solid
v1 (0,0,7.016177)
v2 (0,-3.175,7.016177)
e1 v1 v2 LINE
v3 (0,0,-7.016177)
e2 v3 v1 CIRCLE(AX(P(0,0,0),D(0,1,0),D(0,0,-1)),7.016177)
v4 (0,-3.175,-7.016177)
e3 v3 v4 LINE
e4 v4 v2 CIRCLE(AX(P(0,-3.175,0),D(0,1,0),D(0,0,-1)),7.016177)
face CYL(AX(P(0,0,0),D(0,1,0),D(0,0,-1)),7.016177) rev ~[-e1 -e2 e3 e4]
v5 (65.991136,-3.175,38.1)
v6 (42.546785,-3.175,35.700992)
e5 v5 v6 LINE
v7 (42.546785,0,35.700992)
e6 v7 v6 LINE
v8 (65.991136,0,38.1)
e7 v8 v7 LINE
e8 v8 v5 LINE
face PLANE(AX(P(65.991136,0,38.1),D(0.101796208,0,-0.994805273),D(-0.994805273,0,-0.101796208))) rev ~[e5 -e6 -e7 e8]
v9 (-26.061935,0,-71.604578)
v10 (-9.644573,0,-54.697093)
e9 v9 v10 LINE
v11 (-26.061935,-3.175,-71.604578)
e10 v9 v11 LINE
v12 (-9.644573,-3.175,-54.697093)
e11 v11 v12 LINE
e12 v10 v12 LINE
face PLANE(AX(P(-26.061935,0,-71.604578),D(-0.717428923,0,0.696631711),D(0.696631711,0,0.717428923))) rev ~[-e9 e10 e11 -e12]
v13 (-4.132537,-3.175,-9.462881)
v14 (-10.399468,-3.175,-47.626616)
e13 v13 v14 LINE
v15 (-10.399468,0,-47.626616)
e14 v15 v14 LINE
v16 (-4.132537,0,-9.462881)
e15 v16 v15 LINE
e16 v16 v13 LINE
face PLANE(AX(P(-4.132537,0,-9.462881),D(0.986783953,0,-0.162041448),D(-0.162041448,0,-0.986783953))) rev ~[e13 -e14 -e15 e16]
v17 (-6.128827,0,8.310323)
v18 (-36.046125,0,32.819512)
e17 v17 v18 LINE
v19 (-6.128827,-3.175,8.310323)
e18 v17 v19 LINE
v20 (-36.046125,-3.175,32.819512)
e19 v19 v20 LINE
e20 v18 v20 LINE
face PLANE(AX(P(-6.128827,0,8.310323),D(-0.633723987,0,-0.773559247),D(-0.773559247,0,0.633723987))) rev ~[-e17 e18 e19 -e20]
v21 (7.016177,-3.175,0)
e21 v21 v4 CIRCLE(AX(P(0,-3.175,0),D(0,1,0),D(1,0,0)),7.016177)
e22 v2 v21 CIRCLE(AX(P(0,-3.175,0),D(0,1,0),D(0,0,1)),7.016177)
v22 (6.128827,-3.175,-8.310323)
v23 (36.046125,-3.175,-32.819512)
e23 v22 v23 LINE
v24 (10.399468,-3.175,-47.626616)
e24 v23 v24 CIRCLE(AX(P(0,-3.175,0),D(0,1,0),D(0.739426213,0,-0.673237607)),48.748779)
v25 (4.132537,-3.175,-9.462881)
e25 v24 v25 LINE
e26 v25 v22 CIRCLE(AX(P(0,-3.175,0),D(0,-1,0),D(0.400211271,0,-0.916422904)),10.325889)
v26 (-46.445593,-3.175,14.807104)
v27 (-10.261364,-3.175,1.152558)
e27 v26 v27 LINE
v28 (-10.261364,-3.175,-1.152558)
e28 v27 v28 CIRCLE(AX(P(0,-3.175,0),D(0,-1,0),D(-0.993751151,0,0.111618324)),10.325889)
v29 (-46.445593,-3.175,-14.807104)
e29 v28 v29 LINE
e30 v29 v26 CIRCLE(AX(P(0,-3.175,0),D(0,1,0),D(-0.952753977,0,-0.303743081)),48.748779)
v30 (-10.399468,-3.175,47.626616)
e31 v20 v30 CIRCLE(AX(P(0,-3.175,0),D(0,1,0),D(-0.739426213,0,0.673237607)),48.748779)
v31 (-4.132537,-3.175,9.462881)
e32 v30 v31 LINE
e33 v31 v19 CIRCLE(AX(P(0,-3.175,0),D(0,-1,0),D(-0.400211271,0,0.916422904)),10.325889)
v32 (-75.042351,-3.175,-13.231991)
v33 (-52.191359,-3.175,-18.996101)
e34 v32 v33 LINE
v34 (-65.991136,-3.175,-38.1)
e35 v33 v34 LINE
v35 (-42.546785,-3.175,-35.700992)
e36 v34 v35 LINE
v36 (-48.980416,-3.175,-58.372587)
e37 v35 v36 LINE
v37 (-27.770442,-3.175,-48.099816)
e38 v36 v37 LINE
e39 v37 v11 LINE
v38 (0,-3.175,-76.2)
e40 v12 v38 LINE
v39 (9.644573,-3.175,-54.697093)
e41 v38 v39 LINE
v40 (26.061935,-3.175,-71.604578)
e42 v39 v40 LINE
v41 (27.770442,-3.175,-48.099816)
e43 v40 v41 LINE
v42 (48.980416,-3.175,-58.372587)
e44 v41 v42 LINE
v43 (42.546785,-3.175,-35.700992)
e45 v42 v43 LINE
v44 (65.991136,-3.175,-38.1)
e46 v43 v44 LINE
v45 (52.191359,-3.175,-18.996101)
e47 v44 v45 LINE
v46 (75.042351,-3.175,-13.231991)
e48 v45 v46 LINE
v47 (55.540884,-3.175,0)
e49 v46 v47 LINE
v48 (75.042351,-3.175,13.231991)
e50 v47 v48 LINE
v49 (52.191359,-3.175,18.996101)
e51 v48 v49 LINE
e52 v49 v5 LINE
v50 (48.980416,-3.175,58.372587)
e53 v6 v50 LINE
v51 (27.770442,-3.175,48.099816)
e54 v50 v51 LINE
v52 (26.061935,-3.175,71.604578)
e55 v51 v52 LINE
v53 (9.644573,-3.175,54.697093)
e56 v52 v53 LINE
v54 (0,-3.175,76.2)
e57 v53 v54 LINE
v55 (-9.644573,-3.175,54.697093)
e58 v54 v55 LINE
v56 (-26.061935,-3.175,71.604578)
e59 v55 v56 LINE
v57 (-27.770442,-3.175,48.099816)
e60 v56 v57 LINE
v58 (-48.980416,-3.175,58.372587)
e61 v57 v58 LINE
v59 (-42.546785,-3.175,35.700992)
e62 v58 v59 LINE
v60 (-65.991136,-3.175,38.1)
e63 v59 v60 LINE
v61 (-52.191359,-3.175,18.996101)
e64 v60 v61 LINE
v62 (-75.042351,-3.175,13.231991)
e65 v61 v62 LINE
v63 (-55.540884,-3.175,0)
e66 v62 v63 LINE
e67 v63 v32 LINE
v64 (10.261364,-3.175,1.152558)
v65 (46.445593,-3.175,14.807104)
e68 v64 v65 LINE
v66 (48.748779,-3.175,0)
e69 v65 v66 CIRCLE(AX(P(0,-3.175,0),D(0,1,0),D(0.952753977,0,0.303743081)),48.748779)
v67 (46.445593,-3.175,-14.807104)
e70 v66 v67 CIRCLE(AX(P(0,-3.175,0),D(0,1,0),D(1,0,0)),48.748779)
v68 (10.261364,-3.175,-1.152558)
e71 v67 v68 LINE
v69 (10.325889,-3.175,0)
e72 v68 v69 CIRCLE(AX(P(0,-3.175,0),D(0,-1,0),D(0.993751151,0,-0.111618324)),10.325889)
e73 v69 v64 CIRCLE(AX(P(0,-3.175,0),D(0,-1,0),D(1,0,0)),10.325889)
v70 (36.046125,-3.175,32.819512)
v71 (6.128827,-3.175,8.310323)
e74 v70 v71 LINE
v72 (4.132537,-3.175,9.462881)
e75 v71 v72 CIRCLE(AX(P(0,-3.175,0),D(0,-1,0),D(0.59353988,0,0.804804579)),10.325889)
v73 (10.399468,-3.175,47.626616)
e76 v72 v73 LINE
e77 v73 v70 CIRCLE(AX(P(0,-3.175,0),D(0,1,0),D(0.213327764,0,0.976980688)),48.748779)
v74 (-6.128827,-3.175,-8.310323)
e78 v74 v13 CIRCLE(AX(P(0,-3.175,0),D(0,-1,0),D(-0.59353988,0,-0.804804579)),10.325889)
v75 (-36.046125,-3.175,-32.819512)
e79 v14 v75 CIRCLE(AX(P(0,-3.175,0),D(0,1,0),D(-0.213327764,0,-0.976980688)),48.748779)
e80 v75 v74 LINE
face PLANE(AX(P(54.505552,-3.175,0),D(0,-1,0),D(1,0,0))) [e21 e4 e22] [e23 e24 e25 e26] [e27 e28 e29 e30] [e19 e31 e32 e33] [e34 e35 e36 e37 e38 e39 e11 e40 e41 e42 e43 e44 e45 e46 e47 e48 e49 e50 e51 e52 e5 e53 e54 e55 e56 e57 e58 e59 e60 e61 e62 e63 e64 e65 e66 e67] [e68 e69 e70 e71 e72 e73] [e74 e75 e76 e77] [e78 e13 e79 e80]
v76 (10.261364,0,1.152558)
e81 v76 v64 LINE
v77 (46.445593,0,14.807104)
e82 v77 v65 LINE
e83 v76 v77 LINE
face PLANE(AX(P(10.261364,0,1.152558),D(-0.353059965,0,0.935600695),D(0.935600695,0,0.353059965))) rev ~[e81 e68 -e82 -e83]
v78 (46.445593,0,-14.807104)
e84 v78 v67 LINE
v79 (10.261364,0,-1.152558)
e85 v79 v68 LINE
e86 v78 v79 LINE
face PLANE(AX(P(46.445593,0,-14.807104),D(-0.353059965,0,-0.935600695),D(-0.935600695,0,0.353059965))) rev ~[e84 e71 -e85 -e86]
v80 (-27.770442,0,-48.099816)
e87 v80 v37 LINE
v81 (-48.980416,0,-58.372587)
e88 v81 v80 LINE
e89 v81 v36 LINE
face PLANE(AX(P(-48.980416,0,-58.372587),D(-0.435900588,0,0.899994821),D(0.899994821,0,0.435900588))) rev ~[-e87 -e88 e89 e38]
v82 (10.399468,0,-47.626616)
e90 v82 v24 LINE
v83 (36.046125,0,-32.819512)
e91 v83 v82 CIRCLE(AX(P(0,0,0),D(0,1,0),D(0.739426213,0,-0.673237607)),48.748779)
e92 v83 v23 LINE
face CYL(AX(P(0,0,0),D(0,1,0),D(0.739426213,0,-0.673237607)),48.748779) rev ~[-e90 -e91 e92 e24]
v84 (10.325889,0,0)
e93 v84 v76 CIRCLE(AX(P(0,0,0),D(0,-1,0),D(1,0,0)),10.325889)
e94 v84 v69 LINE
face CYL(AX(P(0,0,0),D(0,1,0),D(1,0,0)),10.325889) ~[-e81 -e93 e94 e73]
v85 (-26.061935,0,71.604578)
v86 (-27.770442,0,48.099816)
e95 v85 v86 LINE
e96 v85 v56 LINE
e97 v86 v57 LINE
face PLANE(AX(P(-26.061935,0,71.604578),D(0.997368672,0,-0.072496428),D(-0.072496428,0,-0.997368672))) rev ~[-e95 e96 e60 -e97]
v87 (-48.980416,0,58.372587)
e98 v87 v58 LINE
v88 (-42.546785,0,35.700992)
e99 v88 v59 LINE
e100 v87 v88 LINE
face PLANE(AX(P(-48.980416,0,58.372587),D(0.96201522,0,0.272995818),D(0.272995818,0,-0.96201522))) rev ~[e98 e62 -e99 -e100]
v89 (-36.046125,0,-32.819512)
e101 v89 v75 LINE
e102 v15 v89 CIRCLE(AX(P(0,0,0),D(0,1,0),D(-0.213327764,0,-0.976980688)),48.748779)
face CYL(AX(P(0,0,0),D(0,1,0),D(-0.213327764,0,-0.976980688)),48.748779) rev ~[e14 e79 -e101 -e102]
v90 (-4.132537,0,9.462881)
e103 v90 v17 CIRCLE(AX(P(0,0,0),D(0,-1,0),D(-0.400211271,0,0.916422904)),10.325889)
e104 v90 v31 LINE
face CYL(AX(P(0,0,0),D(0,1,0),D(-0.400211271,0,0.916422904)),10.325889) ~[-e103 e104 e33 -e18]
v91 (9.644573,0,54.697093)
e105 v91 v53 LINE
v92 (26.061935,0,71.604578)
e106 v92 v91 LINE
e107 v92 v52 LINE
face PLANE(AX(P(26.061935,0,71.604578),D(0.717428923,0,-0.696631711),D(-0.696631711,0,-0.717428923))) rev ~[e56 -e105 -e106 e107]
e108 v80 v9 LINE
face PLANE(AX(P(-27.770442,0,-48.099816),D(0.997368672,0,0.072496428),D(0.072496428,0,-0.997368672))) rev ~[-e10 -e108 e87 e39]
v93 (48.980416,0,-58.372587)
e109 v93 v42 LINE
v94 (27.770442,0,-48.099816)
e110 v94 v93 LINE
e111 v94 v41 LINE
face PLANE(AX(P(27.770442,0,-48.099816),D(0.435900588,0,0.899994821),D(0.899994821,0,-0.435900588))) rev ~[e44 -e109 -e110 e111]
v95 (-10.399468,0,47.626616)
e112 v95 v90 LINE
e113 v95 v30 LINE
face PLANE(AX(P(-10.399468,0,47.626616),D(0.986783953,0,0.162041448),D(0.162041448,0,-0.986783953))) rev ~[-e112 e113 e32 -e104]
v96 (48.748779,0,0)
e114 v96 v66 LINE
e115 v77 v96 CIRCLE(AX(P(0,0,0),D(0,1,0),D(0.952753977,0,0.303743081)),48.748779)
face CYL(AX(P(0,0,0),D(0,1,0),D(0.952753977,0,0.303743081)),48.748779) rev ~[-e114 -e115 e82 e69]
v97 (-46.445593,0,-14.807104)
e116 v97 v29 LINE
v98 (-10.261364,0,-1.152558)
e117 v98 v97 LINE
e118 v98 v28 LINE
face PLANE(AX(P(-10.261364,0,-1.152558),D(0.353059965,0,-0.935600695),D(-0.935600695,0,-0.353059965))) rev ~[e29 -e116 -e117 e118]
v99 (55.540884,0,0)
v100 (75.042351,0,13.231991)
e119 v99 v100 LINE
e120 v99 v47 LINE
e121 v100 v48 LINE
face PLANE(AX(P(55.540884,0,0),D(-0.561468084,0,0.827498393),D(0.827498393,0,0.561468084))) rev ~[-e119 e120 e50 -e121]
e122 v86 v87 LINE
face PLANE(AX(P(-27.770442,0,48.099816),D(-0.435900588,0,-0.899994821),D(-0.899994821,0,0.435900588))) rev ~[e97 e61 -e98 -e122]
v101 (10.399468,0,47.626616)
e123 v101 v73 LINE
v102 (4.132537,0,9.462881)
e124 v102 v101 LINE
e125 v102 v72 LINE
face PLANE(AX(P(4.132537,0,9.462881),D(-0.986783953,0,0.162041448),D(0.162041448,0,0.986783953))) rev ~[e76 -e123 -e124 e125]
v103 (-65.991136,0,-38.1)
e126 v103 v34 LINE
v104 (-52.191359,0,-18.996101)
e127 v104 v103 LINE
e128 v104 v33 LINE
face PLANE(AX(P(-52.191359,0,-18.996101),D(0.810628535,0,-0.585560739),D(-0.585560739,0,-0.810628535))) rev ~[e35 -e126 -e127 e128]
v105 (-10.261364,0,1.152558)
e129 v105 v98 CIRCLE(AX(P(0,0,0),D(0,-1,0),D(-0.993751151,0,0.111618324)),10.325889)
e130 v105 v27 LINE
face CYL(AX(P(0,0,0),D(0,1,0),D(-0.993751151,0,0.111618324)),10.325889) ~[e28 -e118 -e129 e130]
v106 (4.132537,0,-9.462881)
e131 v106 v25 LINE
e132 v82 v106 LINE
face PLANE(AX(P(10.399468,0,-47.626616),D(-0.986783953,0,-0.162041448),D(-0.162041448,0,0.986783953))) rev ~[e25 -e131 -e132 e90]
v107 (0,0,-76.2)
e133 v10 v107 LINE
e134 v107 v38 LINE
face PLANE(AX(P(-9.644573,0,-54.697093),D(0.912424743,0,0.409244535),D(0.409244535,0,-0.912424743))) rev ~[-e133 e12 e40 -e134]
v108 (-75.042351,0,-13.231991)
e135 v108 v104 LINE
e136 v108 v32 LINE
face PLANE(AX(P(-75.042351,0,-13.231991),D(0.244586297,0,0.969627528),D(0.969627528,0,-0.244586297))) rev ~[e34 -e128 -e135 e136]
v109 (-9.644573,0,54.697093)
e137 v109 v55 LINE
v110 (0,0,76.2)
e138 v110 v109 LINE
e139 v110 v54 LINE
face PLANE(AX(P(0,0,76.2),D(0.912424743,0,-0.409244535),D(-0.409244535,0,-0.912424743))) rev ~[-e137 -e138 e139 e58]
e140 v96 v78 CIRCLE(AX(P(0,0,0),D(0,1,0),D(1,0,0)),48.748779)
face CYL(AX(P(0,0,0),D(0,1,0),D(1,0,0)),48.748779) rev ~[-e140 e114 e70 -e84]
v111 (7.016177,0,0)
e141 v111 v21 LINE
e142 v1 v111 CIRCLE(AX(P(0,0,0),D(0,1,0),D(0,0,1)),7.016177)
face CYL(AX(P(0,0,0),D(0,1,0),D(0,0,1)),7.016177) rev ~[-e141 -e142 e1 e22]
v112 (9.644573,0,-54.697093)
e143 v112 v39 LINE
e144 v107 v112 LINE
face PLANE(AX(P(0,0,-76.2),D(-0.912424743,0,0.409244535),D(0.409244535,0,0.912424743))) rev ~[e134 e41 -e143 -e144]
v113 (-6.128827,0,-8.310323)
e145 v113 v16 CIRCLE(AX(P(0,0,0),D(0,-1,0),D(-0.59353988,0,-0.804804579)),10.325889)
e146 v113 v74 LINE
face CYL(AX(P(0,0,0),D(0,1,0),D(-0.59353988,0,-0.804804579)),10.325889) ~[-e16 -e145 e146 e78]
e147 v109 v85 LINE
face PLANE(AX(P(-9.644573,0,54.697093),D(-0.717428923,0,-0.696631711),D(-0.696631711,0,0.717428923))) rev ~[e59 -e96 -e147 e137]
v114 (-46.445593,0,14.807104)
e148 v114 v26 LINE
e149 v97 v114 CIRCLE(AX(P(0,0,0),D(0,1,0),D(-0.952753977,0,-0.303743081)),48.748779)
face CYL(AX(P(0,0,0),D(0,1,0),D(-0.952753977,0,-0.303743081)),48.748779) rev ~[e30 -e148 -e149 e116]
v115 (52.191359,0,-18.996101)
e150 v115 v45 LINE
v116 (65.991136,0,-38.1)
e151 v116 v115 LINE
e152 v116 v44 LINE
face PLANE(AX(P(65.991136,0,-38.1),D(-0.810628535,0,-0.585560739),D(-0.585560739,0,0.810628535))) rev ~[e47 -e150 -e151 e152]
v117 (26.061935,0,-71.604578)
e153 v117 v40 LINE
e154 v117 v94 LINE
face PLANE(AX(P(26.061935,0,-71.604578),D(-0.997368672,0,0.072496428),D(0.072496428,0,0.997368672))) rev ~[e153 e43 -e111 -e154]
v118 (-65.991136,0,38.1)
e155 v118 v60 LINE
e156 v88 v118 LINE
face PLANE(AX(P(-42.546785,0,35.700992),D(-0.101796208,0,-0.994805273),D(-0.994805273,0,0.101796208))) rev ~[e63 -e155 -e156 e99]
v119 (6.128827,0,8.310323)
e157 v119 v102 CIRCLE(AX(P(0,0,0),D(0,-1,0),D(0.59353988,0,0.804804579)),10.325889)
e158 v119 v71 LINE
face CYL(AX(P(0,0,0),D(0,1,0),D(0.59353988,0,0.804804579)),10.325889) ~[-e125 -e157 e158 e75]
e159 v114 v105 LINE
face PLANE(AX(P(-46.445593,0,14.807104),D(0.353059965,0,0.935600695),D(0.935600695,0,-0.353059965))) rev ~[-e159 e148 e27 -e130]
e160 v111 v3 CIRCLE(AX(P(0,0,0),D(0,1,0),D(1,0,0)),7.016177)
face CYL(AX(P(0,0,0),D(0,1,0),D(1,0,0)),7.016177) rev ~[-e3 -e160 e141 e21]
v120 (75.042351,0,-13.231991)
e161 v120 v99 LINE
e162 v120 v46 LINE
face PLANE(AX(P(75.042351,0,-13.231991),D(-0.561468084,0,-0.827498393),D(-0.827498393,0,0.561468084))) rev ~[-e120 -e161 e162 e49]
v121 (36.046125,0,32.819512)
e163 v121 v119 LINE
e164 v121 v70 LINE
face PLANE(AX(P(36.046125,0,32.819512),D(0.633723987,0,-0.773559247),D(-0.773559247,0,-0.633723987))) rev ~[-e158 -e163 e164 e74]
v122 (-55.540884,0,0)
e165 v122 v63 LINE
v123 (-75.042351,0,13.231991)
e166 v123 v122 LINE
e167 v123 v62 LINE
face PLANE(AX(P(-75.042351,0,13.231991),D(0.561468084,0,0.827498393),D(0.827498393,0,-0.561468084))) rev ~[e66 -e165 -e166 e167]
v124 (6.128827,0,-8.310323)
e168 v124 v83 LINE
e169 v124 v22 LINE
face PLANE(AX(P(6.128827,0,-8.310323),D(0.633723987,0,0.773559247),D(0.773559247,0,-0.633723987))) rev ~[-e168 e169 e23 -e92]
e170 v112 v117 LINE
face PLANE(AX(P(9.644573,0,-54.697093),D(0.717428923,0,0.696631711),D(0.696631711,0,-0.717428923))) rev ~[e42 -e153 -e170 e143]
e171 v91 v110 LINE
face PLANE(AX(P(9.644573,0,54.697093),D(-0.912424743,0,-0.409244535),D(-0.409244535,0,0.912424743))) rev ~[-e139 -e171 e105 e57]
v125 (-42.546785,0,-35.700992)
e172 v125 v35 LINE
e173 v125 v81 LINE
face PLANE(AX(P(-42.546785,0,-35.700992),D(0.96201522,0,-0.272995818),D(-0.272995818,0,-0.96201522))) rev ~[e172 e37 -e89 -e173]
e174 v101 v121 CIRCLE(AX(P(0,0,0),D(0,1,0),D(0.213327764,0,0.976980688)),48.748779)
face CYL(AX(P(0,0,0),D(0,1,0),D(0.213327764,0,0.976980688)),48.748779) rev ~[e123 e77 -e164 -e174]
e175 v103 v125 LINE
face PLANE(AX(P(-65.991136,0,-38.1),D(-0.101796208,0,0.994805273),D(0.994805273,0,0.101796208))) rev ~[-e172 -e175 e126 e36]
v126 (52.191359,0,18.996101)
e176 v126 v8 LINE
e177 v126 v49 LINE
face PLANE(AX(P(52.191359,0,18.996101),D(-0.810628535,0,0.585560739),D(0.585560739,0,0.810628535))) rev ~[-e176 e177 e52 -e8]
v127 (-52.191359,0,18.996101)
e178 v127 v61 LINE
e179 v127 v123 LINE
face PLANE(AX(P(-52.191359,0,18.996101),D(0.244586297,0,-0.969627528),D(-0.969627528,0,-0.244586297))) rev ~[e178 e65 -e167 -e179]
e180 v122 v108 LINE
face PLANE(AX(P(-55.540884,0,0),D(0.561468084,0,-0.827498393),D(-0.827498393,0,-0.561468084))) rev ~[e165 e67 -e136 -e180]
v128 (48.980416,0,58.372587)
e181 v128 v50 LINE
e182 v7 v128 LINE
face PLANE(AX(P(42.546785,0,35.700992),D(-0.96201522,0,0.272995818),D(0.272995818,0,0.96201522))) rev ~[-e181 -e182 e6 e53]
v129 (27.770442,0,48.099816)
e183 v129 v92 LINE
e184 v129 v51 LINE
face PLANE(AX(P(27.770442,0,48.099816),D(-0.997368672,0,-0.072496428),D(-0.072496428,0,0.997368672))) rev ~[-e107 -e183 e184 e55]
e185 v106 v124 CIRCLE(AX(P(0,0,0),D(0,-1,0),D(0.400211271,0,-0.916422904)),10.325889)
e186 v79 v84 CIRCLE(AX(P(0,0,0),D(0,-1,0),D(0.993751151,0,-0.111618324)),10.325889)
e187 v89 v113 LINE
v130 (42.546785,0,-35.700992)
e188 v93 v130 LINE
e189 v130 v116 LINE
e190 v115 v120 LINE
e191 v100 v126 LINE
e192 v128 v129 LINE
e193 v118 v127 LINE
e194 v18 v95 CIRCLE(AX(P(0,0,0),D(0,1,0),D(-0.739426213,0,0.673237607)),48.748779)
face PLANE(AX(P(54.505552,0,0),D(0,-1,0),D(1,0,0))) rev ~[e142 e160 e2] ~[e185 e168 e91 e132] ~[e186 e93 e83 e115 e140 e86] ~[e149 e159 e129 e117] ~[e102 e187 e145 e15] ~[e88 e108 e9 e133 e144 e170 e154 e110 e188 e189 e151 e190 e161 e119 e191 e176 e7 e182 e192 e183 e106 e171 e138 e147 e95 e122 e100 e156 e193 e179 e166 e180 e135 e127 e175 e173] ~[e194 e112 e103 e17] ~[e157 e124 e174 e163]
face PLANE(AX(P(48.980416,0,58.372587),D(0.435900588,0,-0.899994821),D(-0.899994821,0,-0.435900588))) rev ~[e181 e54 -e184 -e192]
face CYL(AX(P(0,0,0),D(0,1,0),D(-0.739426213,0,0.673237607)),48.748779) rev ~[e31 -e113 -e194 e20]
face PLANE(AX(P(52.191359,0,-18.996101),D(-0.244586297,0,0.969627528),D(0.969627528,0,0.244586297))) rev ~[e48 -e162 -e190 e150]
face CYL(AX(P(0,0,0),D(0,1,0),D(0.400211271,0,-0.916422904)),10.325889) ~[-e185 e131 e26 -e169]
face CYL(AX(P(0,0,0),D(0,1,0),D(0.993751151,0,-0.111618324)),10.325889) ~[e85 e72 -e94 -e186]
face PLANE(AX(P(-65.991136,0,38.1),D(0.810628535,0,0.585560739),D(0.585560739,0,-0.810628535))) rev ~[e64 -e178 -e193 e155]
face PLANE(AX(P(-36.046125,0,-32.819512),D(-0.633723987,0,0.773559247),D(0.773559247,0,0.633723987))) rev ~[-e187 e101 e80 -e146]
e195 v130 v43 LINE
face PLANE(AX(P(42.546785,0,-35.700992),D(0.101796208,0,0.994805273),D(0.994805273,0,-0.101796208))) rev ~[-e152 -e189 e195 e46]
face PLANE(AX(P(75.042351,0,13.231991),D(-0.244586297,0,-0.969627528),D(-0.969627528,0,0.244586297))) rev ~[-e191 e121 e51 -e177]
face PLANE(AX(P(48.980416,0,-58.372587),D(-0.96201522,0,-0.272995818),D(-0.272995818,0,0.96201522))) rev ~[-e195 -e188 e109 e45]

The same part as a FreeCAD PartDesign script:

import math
import FreeCAD as App
import Part
import Sketcher

V = App.Vector
Q = App.Units.Quantity

doc = App.newDocument("Part")
body = doc.addObject("PartDesign::Body", "Body")

# Sketch on XZ plane
sketch1 = doc.addObject("Sketcher::SketchObject", "Sketch")
body.addObject(sketch1)
sketch1.AttachmentSupport = (doc.XZ_Plane, [""])
sketch1.MapMode = "FlatFace"
sketch1.addGeometry([
    Part.LineSegment(V(-75.042351, 13.231991, 0), V(-55.540884, 0, 0)),  # 0
    Part.LineSegment(V(-55.540884, 0, 0), V(-75.042351, -13.231991, 0)),  # 1
    Part.LineSegment(V(-75.042351, -13.231991, 0), V(-52.191359, -18.996101, 0)),  # 2
    Part.LineSegment(V(-52.191359, -18.996101, 0), V(-65.991136, -38.1, 0)),  # 3
    Part.LineSegment(V(-65.991136, -38.1, 0), V(-42.546785, -35.700992, 0)),  # 4
    Part.LineSegment(V(-42.546785, -35.700992, 0), V(-48.980416, -58.372587, 0)),  # 5
    Part.LineSegment(V(-48.980416, -58.372587, 0), V(-27.770442, -48.099816, 0)),  # 6
    Part.LineSegment(V(-27.770442, -48.099816, 0), V(-26.061935, -71.604578, 0)),  # 7
    Part.LineSegment(V(-26.061935, -71.604578, 0), V(-9.644573, -54.697093, 0)),  # 8
    Part.LineSegment(V(-9.644573, -54.697093, 0), V(0, -76.2, 0)),  # 9
    Part.LineSegment(V(0, -76.2, 0), V(9.644573, -54.697093, 0)),  # 10
    Part.LineSegment(V(9.644573, -54.697093, 0), V(26.061935, -71.604578, 0)),  # 11
    Part.LineSegment(V(26.061935, -71.604578, 0), V(27.770442, -48.099816, 0)),  # 12
    Part.LineSegment(V(27.770442, -48.099816, 0), V(48.980416, -58.372587, 0)),  # 13
    Part.LineSegment(V(48.980416, -58.372587, 0), V(42.546785, -35.700992, 0)),  # 14
    Part.LineSegment(V(42.546785, -35.700992, 0), V(65.991136, -38.1, 0)),  # 15
    Part.LineSegment(V(65.991136, -38.1, 0), V(52.191359, -18.996101, 0)),  # 16
    Part.LineSegment(V(52.191359, -18.996101, 0), V(75.042351, -13.231991, 0)),  # 17
    Part.LineSegment(V(75.042351, -13.231991, 0), V(55.540884, 0, 0)),  # 18
    Part.LineSegment(V(55.540884, 0, 0), V(75.042351, 13.231991, 0)),  # 19
    Part.LineSegment(V(75.042351, 13.231991, 0), V(52.191359, 18.996101, 0)),  # 20
    Part.LineSegment(V(52.191359, 18.996101, 0), V(65.991136, 38.1, 0)),  # 21
    Part.LineSegment(V(65.991136, 38.1, 0), V(42.546785, 35.700992, 0)),  # 22
    Part.LineSegment(V(42.546785, 35.700992, 0), V(48.980416, 58.372587, 0)),  # 23
    Part.LineSegment(V(48.980416, 58.372587, 0), V(27.770442, 48.099816, 0)),  # 24
    Part.LineSegment(V(27.770442, 48.099816, 0), V(26.061935, 71.604578, 0)),  # 25
    Part.LineSegment(V(26.061935, 71.604578, 0), V(9.644573, 54.697093, 0)),  # 26
    Part.LineSegment(V(9.644573, 54.697093, 0), V(0, 76.2, 0)),  # 27
    Part.LineSegment(V(0, 76.2, 0), V(-9.644573, 54.697093, 0)),  # 28
    Part.LineSegment(V(-9.644573, 54.697093, 0), V(-26.061935, 71.604578, 0)),  # 29
    Part.LineSegment(V(-26.061935, 71.604578, 0), V(-27.770442, 48.099816, 0)),  # 30
    Part.LineSegment(V(-27.770442, 48.099816, 0), V(-48.980416, 58.372587, 0)),  # 31
    Part.LineSegment(V(-48.980416, 58.372587, 0), V(-42.546785, 35.700992, 0)),  # 32
    Part.LineSegment(V(-42.546785, 35.700992, 0), V(-65.991136, 38.1, 0)),  # 33
    Part.LineSegment(V(-65.991136, 38.1, 0), V(-52.191359, 18.996101, 0)),  # 34
    Part.LineSegment(V(-52.191359, 18.996101, 0), V(-75.042351, 13.231991, 0)),  # 35
    Part.ArcOfCircle(Part.Circle(V(0, 0, 0), V(0, 0, 1), 48.748779), math.radians(-137.682561), math.radians(-102.317439)),  # 36
    Part.LineSegment(V(-36.046125, -32.819512, 0), V(-6.128827, -8.310323, 0)),  # 37
    Part.ArcOfCircle(Part.Circle(V(0, 0, 0), V(0, 0, 1), 10.325889), math.radians(-126.408613), math.radians(-113.591387)),  # 38
    Part.LineSegment(V(-4.132537, -9.462881, 0), V(-10.399468, -47.626616, 0)),  # 39
    Part.LineSegment(V(-10.261364, -1.152558, 0), V(-46.445593, -14.807104, 0)),  # 40
    Part.ArcOfCircle(Part.Circle(V(0, 0, 0), V(0, 0, 1), 48.748779), math.radians(162.317439), math.radians(197.682561)),  # 41
    Part.LineSegment(V(-46.445593, 14.807104, 0), V(-10.261364, 1.152558, 0)),  # 42
    Part.ArcOfCircle(Part.Circle(V(0, 0, 0), V(0, 0, 1), 10.325889), math.radians(173.591387), math.radians(186.408613)),  # 43
    Part.LineSegment(V(-6.128827, 8.310323, 0), V(-36.046125, 32.819512, 0)),  # 44
    Part.ArcOfCircle(Part.Circle(V(0, 0, 0), V(0, 0, 1), 48.748779), math.radians(102.317439), math.radians(137.682561)),  # 45
    Part.LineSegment(V(-10.399468, 47.626616, 0), V(-4.132537, 9.462881, 0)),  # 46
    Part.ArcOfCircle(Part.Circle(V(0, 0, 0), V(0, 0, 1), 10.325889), math.radians(113.591387), math.radians(126.408613)),  # 47
    Part.LineSegment(V(4.132537, 9.462881, 0), V(10.399468, 47.626616, 0)),  # 48
    Part.ArcOfCircle(Part.Circle(V(0, 0, 0), V(0, 0, 1), 48.748779), math.radians(42.317439), math.radians(77.682561)),  # 49
    Part.LineSegment(V(36.046125, 32.819512, 0), V(6.128827, 8.310323, 0)),  # 50
    Part.ArcOfCircle(Part.Circle(V(0, 0, 0), V(0, 0, 1), 10.325889), math.radians(53.591387), math.radians(66.408613)),  # 51
    Part.LineSegment(V(10.261364, 1.152558, 0), V(46.445593, 14.807104, 0)),  # 52
    Part.ArcOfCircle(Part.Circle(V(0, 0, 0), V(0, 0, 1), 48.748779), math.radians(0), math.radians(17.682561)),  # 53
    Part.ArcOfCircle(Part.Circle(V(0, 0, 0), V(0, 0, 1), 48.748779), math.radians(-17.682561), math.radians(0)),  # 54
    Part.LineSegment(V(46.445593, -14.807104, 0), V(10.261364, -1.152558, 0)),  # 55
    Part.ArcOfCircle(Part.Circle(V(0, 0, 0), V(0, 0, 1), 10.325889), math.radians(-6.408613), math.radians(0)),  # 56
    Part.ArcOfCircle(Part.Circle(V(0, 0, 0), V(0, 0, 1), 10.325889), math.radians(0), math.radians(6.408613)),  # 57
    Part.LineSegment(V(6.128827, -8.310323, 0), V(36.046125, -32.819512, 0)),  # 58
    Part.ArcOfCircle(Part.Circle(V(0, 0, 0), V(0, 0, 1), 48.748779), math.radians(-77.682561), math.radians(-42.317439)),  # 59
    Part.LineSegment(V(10.399468, -47.626616, 0), V(4.132537, -9.462881, 0)),  # 60
    Part.ArcOfCircle(Part.Circle(V(0, 0, 0), V(0, 0, 1), 10.325889), math.radians(-66.408613), math.radians(-53.591387)),  # 61
    Part.ArcOfCircle(Part.Circle(V(0, 0, 0), V(0, 0, 1), 7.016177), math.radians(90), math.radians(270)),  # 62
    Part.ArcOfCircle(Part.Circle(V(0, 0, 0), V(0, 0, 1), 7.016177), math.radians(0), math.radians(90)),  # 63
    Part.ArcOfCircle(Part.Circle(V(0, 0, 0), V(0, 0, 1), 7.016177), math.radians(-90), math.radians(0)),  # 64
], False)
sketch1.addConstraint([
    Sketcher.Constraint("Coincident", 0, 2, 1, 1),
    Sketcher.Constraint("Coincident", 1, 2, 2, 1),
    Sketcher.Constraint("Coincident", 2, 2, 3, 1),
    Sketcher.Constraint("Coincident", 3, 2, 4, 1),
    Sketcher.Constraint("Coincident", 4, 2, 5, 1),
    Sketcher.Constraint("Coincident", 5, 2, 6, 1),
    Sketcher.Constraint("Coincident", 6, 2, 7, 1),
    Sketcher.Constraint("Coincident", 7, 2, 8, 1),
    Sketcher.Constraint("Coincident", 8, 2, 9, 1),
    Sketcher.Constraint("Coincident", 9, 2, 10, 1),
    Sketcher.Constraint("Coincident", 10, 2, 11, 1),
    Sketcher.Constraint("Coincident", 11, 2, 12, 1),
    Sketcher.Constraint("Coincident", 12, 2, 13, 1),
    Sketcher.Constraint("Coincident", 13, 2, 14, 1),
    Sketcher.Constraint("Coincident", 14, 2, 15, 1),
    Sketcher.Constraint("Coincident", 15, 2, 16, 1),
    Sketcher.Constraint("Coincident", 16, 2, 17, 1),
    Sketcher.Constraint("Coincident", 17, 2, 18, 1),
    Sketcher.Constraint("Coincident", 18, 2, 19, 1),
    Sketcher.Constraint("Coincident", 19, 2, 20, 1),
    Sketcher.Constraint("Coincident", 20, 2, 21, 1),
    Sketcher.Constraint("Coincident", 21, 2, 22, 1),
    Sketcher.Constraint("Coincident", 22, 2, 23, 1),
    Sketcher.Constraint("Coincident", 23, 2, 24, 1),
    Sketcher.Constraint("Coincident", 24, 2, 25, 1),
    Sketcher.Constraint("Coincident", 25, 2, 26, 1),
    Sketcher.Constraint("Coincident", 26, 2, 27, 1),
    Sketcher.Constraint("Coincident", 27, 2, 28, 1),
    Sketcher.Constraint("Coincident", 28, 2, 29, 1),
    Sketcher.Constraint("Coincident", 29, 2, 30, 1),
    Sketcher.Constraint("Coincident", 30, 2, 31, 1),
    Sketcher.Constraint("Coincident", 31, 2, 32, 1),
    Sketcher.Constraint("Coincident", 32, 2, 33, 1),
    Sketcher.Constraint("Coincident", 33, 2, 34, 1),
    Sketcher.Constraint("Coincident", 34, 2, 35, 1),
    Sketcher.Constraint("Coincident", 35, 2, 0, 1),
    Sketcher.Constraint("Coincident", 36, 1, 37, 1),
    Sketcher.Constraint("Coincident", 37, 2, 38, 1),
    Sketcher.Constraint("Coincident", 38, 2, 39, 1),
    Sketcher.Constraint("Coincident", 39, 2, 36, 2),
    Sketcher.Constraint("Coincident", 40, 2, 41, 2),
    Sketcher.Constraint("Coincident", 41, 1, 42, 1),
    Sketcher.Constraint("Coincident", 42, 2, 43, 1),
    Sketcher.Constraint("Coincident", 43, 2, 40, 1),
    Sketcher.Constraint("Coincident", 44, 2, 45, 2),
    Sketcher.Constraint("Coincident", 45, 1, 46, 1),
    Sketcher.Constraint("Coincident", 46, 2, 47, 1),
    Sketcher.Constraint("Coincident", 47, 2, 44, 1),
    Sketcher.Constraint("Coincident", 48, 2, 49, 2),
    Sketcher.Constraint("Coincident", 49, 1, 50, 1),
    Sketcher.Constraint("Coincident", 50, 2, 51, 1),
    Sketcher.Constraint("Coincident", 51, 2, 48, 1),
    Sketcher.Constraint("Coincident", 52, 2, 53, 2),
    Sketcher.Constraint("Tangent", 53, 1, 54, 2),
    Sketcher.Constraint("Coincident", 54, 1, 55, 1),
    Sketcher.Constraint("Coincident", 55, 2, 56, 1),
    Sketcher.Constraint("Tangent", 56, 2, 57, 1),
    Sketcher.Constraint("Coincident", 57, 2, 52, 1),
    Sketcher.Constraint("Coincident", 58, 2, 59, 2),
    Sketcher.Constraint("Coincident", 59, 1, 60, 1),
    Sketcher.Constraint("Coincident", 60, 2, 61, 1),
    Sketcher.Constraint("Coincident", 61, 2, 58, 1),
    Sketcher.Constraint("Tangent", 62, 1, 63, 2),
    Sketcher.Constraint("Tangent", 63, 1, 64, 2),
    Sketcher.Constraint("Tangent", 64, 1, 62, 2),
    Sketcher.Constraint("Coincident", 36, 3, -1, 1),
    Sketcher.Constraint("Coincident", 38, 3, -1, 1),
    Sketcher.Constraint("Coincident", 41, 3, -1, 1),
    Sketcher.Constraint("Coincident", 43, 3, -1, 1),
    Sketcher.Constraint("Coincident", 45, 3, -1, 1),
    Sketcher.Constraint("Coincident", 47, 3, -1, 1),
    Sketcher.Constraint("Coincident", 49, 3, -1, 1),
    Sketcher.Constraint("Coincident", 51, 3, -1, 1),
    Sketcher.Constraint("Coincident", 53, 3, -1, 1),
    Sketcher.Constraint("Coincident", 56, 3, -1, 1),
    Sketcher.Constraint("Coincident", 59, 3, -1, 1),
    Sketcher.Constraint("Coincident", 61, 3, -1, 1),
    Sketcher.Constraint("Coincident", 62, 3, -1, 1),
    Sketcher.Constraint("Equal", 36, 41),
    Sketcher.Constraint("Equal", 38, 43),
    Sketcher.Constraint("Equal", 41, 45),
    Sketcher.Constraint("Equal", 43, 47),
    Sketcher.Constraint("Equal", 45, 49),
    Sketcher.Constraint("Equal", 47, 51),
    Sketcher.Constraint("Equal", 49, 53),
    Sketcher.Constraint("Equal", 53, 54),
    Sketcher.Constraint("Equal", 51, 56),
    Sketcher.Constraint("Equal", 56, 57),
    Sketcher.Constraint("Equal", 54, 59),
    Sketcher.Constraint("Equal", 57, 61),
    Sketcher.Constraint("Symmetric", 0, 2, 18, 2, -1, 1),
    Sketcher.Constraint("Symmetric", 1, 2, 19, 2, -1, 1),
    Sketcher.Constraint("Symmetric", 2, 2, 20, 2, -1, 1),
    Sketcher.Constraint("Symmetric", 3, 2, 21, 2, -1, 1),
    Sketcher.Constraint("Symmetric", 4, 2, 22, 2, -1, 1),
    Sketcher.Constraint("Symmetric", 5, 2, 23, 2, -1, 1),
    Sketcher.Constraint("Symmetric", 6, 2, 24, 2, -1, 1),
    Sketcher.Constraint("Symmetric", 7, 2, 25, 2, -1, 1),
    Sketcher.Constraint("Symmetric", 8, 2, 26, 2, -1, 1),
    Sketcher.Constraint("Symmetric", 9, 2, 27, 2, -1, 1),
    Sketcher.Constraint("Symmetric", 10, 2, 28, 2, -1, 1),
    Sketcher.Constraint("Symmetric", 11, 2, 29, 2, -1, 1),
    Sketcher.Constraint("Symmetric", 12, 2, 30, 2, -1, 1),
    Sketcher.Constraint("Symmetric", 13, 2, 31, 2, -1, 1),
    Sketcher.Constraint("Symmetric", 14, 2, 32, 2, -1, 1),
    Sketcher.Constraint("Symmetric", 15, 2, 33, 2, -1, 1),
    Sketcher.Constraint("Symmetric", 16, 2, 34, 2, -1, 1),
    Sketcher.Constraint("Symmetric", 17, 2, 35, 2, -1, 1),
    Sketcher.Constraint("Symmetric", 8, 2, 10, 2, -2),
    Sketcher.Constraint("Symmetric", 7, 2, 11, 2, -2),
    Sketcher.Constraint("Symmetric", 6, 2, 12, 2, -2),
    Sketcher.Constraint("Symmetric", 5, 2, 13, 2, -2),
    Sketcher.Constraint("Symmetric", 4, 2, 14, 2, -2),
    Sketcher.Constraint("Symmetric", 3, 2, 15, 2, -2),
    Sketcher.Constraint("Symmetric", 2, 2, 16, 2, -2),
    Sketcher.Constraint("Symmetric", 1, 2, 17, 2, -2),
    Sketcher.Constraint("PointOnObject", 0, 2, -1),
    Sketcher.Constraint("PointOnObject", 9, 2, -2),
    Sketcher.Constraint("PointOnObject", 53, 1, -1),
    Sketcher.Constraint("PointOnObject", 56, 2, -1),
    Sketcher.Constraint("PointOnObject", 62, 1, -2),
    Sketcher.Constraint("PointOnObject", 63, 1, -1),
    Sketcher.Constraint("PointOnObject", 64, 1, -2),
    Sketcher.Constraint("Parallel", 39, 48),
    Sketcher.Constraint("Parallel", 37, 50),
    Sketcher.Constraint("Parallel", 40, 52),
    Sketcher.Constraint("Parallel", 42, 55),
    Sketcher.Constraint("Parallel", 44, 58),
    Sketcher.Constraint("Parallel", 46, 60),
    Sketcher.Constraint("Horizontal", 45, 1, 48, 2),
    Sketcher.Constraint("Horizontal", 44, 2, 49, 1),
    Sketcher.Constraint("Horizontal", 47, 2, 50, 2),
    Sketcher.Constraint("Horizontal", 46, 2, 51, 2),
    Sketcher.Constraint("Horizontal", 41, 1, 52, 2),
    Sketcher.Constraint("Horizontal", 40, 2, 54, 1),
    Sketcher.Constraint("Horizontal", 43, 2, 55, 2),
    Sketcher.Constraint("Horizontal", 36, 1, 58, 2),
    Sketcher.Constraint("Horizontal", 39, 2, 59, 1),
    Sketcher.Constraint("Vertical", 40, 2, 41, 1),
    Sketcher.Constraint("Vertical", 36, 1, 44, 2),
    Sketcher.Constraint("Vertical", 39, 2, 45, 1),
    Sketcher.Constraint("Equal", 1, 2),
    Sketcher.Constraint("Equal", 2, 3),
    Sketcher.Constraint("Equal", 3, 4),
    Sketcher.Constraint("Equal", 4, 5),
    Sketcher.Constraint("Equal", 5, 6),
    Sketcher.Constraint("Equal", 6, 7),
    Sketcher.Constraint("Equal", 7, 8),
    Sketcher.Constraint("Equal", 8, 9),
    Sketcher.Constraint("Equal", 37, 39),
    Sketcher.Constraint("Equal", 39, 40),
    Sketcher.Constraint("DistanceY", 9, 2, -1, 1, Q("3 in")),
    Sketcher.Constraint("DistanceY", 3, 2, -1, 1, Q("1.5 in")),
    Sketcher.Constraint("Radius", 36, Q("48.748779 mm")),
    Sketcher.Constraint("Radius", 38, Q("10.325889 mm")),
    Sketcher.Constraint("Radius", 62, Q("7.016177 mm")),
    Sketcher.Constraint("DistanceY", 2, 2, -1, 1, Q("18.996101 mm")),
    Sketcher.Constraint("DistanceX", 1, 2, -1, 1, Q("75.042351 mm")),
    Sketcher.Constraint("DistanceY", 1, 2, -1, 1, Q("13.231991 mm")),
    Sketcher.Constraint("DistanceX", 2, 2, -1, 1, Q("52.191359 mm")),
    Sketcher.Constraint("DistanceY", 4, 2, -1, 1, Q("35.700992 mm")),
    Sketcher.Constraint("DistanceX", 6, 2, -1, 1, Q("27.770442 mm")),
    Sketcher.Constraint("DistanceY", 36, 1, -1, 1, Q("32.819512 mm")),
    Sketcher.Constraint("DistanceY", 38, 2, -1, 1, Q("9.462881 mm")),
    Sketcher.Constraint("DistanceX", 39, 2, -1, 1, Q("10.399468 mm")),
    Sketcher.Constraint("DistanceY", -1, 1, 42, 2, Q("1.152558 mm")),
    Sketcher.Constraint("DistanceX", 5, 2, -1, 1, Q("48.980416 mm")),
    Sketcher.Constraint("DistanceX", 7, 2, -1, 1, Q("26.061935 mm")),
])
pad1 = doc.addObject("PartDesign::Pad", "Pad")
body.addObject(pad1)
pad1.Profile = sketch1
pad1.Length = Q("0.125 in")

doc.recompute()
